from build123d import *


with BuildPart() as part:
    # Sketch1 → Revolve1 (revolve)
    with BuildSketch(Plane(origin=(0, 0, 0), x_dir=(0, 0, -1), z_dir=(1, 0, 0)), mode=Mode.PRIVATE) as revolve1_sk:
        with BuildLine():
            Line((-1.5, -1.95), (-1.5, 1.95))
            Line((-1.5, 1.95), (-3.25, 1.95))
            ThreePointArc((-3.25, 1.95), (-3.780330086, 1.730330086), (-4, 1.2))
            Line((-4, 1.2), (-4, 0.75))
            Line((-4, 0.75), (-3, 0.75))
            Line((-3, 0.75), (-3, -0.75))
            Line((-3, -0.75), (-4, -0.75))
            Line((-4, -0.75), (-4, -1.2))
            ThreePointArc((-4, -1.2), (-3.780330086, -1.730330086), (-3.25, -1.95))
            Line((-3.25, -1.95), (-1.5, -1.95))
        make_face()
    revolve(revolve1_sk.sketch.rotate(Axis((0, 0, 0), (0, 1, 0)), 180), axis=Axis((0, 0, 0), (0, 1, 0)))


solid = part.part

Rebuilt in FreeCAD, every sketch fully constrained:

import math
import FreeCAD as App
import Part
import Sketcher

V = App.Vector

doc = App.newDocument("Part")
params = doc.addObject("Spreadsheet::Sheet", "Params")
for row, (alias, value) in enumerate([
    ("sketch1_height", "1 mm"),
    ("sketch1_radius", "0.75 mm"),
    ("sketch1_width", "3.9 mm"),
    ("sketch1_width2", "1.5 mm"),
    ("sketch1_height2", "1.75 mm"),
    ("revolution_angle", "360 deg"),
], start=1):
    params.set(f"A{row}", alias)
    params.set(f"B{row}", "=" + value)
    params.setAlias(f"B{row}", alias)

body = doc.addObject("PartDesign::Body", "Body")

# Sketch on YZ plane
sketch1 = body.newObject("Sketcher::SketchObject", "Sketch")
sketch1.AttachmentSupport = (doc.getObject("YZ_Plane"), [""])
sketch1.MapMode = "FlatFace"
sketch1.addGeometry(Part.LineSegment(V(-1.95, 1.5, 0), V(1.95, 1.5, 0)), False)
sketch1.addGeometry(Part.LineSegment(V(1.95, 1.5, 0), V(1.95, 3.25, 0)), False)
sketch1.addGeometry(Part.ArcOfCircle(Part.Circle(V(1.2, 3.25, 0), V(0, 0, 1), 0.75), math.radians(0), math.radians(90)), False)
sketch1.addGeometry(Part.LineSegment(V(1.2, 4, 0), V(0.75, 4, 0)), False)
sketch1.addGeometry(Part.LineSegment(V(0.75, 4, 0), V(0.75, 3, 0)), False)
sketch1.addGeometry(Part.LineSegment(V(0.75, 3, 0), V(-0.75, 3, 0)), False)
sketch1.addGeometry(Part.LineSegment(V(-0.75, 3, 0), V(-0.75, 4, 0)), False)
sketch1.addGeometry(Part.LineSegment(V(-0.75, 4, 0), V(-1.2, 4, 0)), False)
sketch1.addGeometry(Part.ArcOfCircle(Part.Circle(V(-1.2, 3.25, 0), V(0, 0, 1), 0.75), math.radians(90), math.radians(180)), False)
sketch1.addGeometry(Part.LineSegment(V(-1.95, 3.25, 0), V(-1.95, 1.5, 0)), False)
sketch1.addConstraint(Sketcher.Constraint("Coincident", 0, 2, 1, 1))
sketch1.addConstraint(Sketcher.Constraint("Tangent", 1, 2, 2, 1))
sketch1.addConstraint(Sketcher.Constraint("Tangent", 2, 2, 3, 1))
sketch1.addConstraint(Sketcher.Constraint("Coincident", 3, 2, 4, 1))
sketch1.addConstraint(Sketcher.Constraint("Coincident", 4, 2, 5, 1))
sketch1.addConstraint(Sketcher.Constraint("Coincident", 5, 2, 6, 1))
sketch1.addConstraint(Sketcher.Constraint("Coincident", 6, 2, 7, 1))
sketch1.addConstraint(Sketcher.Constraint("Tangent", 7, 2, 8, 1))
sketch1.addConstraint(Sketcher.Constraint("Tangent", 8, 2, 9, 1))
sketch1.addConstraint(Sketcher.Constraint("Coincident", 9, 2, 0, 1))
sketch1.addConstraint(Sketcher.Constraint("Horizontal", 0))
sketch1.addConstraint(Sketcher.Constraint("Vertical", 1))
sketch1.addConstraint(Sketcher.Constraint("Horizontal", 3))
sketch1.addConstraint(Sketcher.Constraint("Vertical", 4))
sketch1.addConstraint(Sketcher.Constraint("Horizontal", 5))
sketch1.addConstraint(Sketcher.Constraint("Vertical", 6))
sketch1.addConstraint(Sketcher.Constraint("Horizontal", 7))
sketch1.addConstraint(Sketcher.Constraint("Vertical", 9))
sketch1.addConstraint(Sketcher.Constraint("Equal", 2, 8))
sketch1.addConstraint(Sketcher.Constraint("Symmetric", 2, 3, 8, 3, -2))
sketch1.addConstraint(Sketcher.Constraint("Equal", 3, 7))
sketch1.addConstraint(Sketcher.Constraint("DistanceY", 4, 2, 4, 1, 1.0))
sketch1.addConstraint(Sketcher.Constraint("Radius", 2, 0.75))
sketch1.addConstraint(Sketcher.Constraint("DistanceX", 0, 1, 0, 2, 3.9))
sketch1.addConstraint(Sketcher.Constraint("DistanceX", 5, 2, 5, 1, 1.5))
sketch1.addConstraint(Sketcher.Constraint("DistanceY", -1, 1, 2, 2, 4.0))
sketch1.addConstraint(Sketcher.Constraint("DistanceY", 1, 1, 1, 2, 1.75))
sketch1.setExpression("Constraints[21]", "Params.sketch1_height")
sketch1.setExpression("Constraints[22]", "Params.sketch1_radius")
sketch1.setExpression("Constraints[23]", "Params.sketch1_width")
sketch1.setExpression("Constraints[24]", "Params.sketch1_width2")
sketch1.setExpression("Constraints[26]", "Params.sketch1_height2")
revolution = body.newObject("PartDesign::Revolution", "Revolution")
revolution.Profile = sketch1
revolution.ReferenceAxis = (sketch1, ["H_Axis"])
revolution.setExpression("Angle", "Params.revolution_angle")

doc.recompute()
